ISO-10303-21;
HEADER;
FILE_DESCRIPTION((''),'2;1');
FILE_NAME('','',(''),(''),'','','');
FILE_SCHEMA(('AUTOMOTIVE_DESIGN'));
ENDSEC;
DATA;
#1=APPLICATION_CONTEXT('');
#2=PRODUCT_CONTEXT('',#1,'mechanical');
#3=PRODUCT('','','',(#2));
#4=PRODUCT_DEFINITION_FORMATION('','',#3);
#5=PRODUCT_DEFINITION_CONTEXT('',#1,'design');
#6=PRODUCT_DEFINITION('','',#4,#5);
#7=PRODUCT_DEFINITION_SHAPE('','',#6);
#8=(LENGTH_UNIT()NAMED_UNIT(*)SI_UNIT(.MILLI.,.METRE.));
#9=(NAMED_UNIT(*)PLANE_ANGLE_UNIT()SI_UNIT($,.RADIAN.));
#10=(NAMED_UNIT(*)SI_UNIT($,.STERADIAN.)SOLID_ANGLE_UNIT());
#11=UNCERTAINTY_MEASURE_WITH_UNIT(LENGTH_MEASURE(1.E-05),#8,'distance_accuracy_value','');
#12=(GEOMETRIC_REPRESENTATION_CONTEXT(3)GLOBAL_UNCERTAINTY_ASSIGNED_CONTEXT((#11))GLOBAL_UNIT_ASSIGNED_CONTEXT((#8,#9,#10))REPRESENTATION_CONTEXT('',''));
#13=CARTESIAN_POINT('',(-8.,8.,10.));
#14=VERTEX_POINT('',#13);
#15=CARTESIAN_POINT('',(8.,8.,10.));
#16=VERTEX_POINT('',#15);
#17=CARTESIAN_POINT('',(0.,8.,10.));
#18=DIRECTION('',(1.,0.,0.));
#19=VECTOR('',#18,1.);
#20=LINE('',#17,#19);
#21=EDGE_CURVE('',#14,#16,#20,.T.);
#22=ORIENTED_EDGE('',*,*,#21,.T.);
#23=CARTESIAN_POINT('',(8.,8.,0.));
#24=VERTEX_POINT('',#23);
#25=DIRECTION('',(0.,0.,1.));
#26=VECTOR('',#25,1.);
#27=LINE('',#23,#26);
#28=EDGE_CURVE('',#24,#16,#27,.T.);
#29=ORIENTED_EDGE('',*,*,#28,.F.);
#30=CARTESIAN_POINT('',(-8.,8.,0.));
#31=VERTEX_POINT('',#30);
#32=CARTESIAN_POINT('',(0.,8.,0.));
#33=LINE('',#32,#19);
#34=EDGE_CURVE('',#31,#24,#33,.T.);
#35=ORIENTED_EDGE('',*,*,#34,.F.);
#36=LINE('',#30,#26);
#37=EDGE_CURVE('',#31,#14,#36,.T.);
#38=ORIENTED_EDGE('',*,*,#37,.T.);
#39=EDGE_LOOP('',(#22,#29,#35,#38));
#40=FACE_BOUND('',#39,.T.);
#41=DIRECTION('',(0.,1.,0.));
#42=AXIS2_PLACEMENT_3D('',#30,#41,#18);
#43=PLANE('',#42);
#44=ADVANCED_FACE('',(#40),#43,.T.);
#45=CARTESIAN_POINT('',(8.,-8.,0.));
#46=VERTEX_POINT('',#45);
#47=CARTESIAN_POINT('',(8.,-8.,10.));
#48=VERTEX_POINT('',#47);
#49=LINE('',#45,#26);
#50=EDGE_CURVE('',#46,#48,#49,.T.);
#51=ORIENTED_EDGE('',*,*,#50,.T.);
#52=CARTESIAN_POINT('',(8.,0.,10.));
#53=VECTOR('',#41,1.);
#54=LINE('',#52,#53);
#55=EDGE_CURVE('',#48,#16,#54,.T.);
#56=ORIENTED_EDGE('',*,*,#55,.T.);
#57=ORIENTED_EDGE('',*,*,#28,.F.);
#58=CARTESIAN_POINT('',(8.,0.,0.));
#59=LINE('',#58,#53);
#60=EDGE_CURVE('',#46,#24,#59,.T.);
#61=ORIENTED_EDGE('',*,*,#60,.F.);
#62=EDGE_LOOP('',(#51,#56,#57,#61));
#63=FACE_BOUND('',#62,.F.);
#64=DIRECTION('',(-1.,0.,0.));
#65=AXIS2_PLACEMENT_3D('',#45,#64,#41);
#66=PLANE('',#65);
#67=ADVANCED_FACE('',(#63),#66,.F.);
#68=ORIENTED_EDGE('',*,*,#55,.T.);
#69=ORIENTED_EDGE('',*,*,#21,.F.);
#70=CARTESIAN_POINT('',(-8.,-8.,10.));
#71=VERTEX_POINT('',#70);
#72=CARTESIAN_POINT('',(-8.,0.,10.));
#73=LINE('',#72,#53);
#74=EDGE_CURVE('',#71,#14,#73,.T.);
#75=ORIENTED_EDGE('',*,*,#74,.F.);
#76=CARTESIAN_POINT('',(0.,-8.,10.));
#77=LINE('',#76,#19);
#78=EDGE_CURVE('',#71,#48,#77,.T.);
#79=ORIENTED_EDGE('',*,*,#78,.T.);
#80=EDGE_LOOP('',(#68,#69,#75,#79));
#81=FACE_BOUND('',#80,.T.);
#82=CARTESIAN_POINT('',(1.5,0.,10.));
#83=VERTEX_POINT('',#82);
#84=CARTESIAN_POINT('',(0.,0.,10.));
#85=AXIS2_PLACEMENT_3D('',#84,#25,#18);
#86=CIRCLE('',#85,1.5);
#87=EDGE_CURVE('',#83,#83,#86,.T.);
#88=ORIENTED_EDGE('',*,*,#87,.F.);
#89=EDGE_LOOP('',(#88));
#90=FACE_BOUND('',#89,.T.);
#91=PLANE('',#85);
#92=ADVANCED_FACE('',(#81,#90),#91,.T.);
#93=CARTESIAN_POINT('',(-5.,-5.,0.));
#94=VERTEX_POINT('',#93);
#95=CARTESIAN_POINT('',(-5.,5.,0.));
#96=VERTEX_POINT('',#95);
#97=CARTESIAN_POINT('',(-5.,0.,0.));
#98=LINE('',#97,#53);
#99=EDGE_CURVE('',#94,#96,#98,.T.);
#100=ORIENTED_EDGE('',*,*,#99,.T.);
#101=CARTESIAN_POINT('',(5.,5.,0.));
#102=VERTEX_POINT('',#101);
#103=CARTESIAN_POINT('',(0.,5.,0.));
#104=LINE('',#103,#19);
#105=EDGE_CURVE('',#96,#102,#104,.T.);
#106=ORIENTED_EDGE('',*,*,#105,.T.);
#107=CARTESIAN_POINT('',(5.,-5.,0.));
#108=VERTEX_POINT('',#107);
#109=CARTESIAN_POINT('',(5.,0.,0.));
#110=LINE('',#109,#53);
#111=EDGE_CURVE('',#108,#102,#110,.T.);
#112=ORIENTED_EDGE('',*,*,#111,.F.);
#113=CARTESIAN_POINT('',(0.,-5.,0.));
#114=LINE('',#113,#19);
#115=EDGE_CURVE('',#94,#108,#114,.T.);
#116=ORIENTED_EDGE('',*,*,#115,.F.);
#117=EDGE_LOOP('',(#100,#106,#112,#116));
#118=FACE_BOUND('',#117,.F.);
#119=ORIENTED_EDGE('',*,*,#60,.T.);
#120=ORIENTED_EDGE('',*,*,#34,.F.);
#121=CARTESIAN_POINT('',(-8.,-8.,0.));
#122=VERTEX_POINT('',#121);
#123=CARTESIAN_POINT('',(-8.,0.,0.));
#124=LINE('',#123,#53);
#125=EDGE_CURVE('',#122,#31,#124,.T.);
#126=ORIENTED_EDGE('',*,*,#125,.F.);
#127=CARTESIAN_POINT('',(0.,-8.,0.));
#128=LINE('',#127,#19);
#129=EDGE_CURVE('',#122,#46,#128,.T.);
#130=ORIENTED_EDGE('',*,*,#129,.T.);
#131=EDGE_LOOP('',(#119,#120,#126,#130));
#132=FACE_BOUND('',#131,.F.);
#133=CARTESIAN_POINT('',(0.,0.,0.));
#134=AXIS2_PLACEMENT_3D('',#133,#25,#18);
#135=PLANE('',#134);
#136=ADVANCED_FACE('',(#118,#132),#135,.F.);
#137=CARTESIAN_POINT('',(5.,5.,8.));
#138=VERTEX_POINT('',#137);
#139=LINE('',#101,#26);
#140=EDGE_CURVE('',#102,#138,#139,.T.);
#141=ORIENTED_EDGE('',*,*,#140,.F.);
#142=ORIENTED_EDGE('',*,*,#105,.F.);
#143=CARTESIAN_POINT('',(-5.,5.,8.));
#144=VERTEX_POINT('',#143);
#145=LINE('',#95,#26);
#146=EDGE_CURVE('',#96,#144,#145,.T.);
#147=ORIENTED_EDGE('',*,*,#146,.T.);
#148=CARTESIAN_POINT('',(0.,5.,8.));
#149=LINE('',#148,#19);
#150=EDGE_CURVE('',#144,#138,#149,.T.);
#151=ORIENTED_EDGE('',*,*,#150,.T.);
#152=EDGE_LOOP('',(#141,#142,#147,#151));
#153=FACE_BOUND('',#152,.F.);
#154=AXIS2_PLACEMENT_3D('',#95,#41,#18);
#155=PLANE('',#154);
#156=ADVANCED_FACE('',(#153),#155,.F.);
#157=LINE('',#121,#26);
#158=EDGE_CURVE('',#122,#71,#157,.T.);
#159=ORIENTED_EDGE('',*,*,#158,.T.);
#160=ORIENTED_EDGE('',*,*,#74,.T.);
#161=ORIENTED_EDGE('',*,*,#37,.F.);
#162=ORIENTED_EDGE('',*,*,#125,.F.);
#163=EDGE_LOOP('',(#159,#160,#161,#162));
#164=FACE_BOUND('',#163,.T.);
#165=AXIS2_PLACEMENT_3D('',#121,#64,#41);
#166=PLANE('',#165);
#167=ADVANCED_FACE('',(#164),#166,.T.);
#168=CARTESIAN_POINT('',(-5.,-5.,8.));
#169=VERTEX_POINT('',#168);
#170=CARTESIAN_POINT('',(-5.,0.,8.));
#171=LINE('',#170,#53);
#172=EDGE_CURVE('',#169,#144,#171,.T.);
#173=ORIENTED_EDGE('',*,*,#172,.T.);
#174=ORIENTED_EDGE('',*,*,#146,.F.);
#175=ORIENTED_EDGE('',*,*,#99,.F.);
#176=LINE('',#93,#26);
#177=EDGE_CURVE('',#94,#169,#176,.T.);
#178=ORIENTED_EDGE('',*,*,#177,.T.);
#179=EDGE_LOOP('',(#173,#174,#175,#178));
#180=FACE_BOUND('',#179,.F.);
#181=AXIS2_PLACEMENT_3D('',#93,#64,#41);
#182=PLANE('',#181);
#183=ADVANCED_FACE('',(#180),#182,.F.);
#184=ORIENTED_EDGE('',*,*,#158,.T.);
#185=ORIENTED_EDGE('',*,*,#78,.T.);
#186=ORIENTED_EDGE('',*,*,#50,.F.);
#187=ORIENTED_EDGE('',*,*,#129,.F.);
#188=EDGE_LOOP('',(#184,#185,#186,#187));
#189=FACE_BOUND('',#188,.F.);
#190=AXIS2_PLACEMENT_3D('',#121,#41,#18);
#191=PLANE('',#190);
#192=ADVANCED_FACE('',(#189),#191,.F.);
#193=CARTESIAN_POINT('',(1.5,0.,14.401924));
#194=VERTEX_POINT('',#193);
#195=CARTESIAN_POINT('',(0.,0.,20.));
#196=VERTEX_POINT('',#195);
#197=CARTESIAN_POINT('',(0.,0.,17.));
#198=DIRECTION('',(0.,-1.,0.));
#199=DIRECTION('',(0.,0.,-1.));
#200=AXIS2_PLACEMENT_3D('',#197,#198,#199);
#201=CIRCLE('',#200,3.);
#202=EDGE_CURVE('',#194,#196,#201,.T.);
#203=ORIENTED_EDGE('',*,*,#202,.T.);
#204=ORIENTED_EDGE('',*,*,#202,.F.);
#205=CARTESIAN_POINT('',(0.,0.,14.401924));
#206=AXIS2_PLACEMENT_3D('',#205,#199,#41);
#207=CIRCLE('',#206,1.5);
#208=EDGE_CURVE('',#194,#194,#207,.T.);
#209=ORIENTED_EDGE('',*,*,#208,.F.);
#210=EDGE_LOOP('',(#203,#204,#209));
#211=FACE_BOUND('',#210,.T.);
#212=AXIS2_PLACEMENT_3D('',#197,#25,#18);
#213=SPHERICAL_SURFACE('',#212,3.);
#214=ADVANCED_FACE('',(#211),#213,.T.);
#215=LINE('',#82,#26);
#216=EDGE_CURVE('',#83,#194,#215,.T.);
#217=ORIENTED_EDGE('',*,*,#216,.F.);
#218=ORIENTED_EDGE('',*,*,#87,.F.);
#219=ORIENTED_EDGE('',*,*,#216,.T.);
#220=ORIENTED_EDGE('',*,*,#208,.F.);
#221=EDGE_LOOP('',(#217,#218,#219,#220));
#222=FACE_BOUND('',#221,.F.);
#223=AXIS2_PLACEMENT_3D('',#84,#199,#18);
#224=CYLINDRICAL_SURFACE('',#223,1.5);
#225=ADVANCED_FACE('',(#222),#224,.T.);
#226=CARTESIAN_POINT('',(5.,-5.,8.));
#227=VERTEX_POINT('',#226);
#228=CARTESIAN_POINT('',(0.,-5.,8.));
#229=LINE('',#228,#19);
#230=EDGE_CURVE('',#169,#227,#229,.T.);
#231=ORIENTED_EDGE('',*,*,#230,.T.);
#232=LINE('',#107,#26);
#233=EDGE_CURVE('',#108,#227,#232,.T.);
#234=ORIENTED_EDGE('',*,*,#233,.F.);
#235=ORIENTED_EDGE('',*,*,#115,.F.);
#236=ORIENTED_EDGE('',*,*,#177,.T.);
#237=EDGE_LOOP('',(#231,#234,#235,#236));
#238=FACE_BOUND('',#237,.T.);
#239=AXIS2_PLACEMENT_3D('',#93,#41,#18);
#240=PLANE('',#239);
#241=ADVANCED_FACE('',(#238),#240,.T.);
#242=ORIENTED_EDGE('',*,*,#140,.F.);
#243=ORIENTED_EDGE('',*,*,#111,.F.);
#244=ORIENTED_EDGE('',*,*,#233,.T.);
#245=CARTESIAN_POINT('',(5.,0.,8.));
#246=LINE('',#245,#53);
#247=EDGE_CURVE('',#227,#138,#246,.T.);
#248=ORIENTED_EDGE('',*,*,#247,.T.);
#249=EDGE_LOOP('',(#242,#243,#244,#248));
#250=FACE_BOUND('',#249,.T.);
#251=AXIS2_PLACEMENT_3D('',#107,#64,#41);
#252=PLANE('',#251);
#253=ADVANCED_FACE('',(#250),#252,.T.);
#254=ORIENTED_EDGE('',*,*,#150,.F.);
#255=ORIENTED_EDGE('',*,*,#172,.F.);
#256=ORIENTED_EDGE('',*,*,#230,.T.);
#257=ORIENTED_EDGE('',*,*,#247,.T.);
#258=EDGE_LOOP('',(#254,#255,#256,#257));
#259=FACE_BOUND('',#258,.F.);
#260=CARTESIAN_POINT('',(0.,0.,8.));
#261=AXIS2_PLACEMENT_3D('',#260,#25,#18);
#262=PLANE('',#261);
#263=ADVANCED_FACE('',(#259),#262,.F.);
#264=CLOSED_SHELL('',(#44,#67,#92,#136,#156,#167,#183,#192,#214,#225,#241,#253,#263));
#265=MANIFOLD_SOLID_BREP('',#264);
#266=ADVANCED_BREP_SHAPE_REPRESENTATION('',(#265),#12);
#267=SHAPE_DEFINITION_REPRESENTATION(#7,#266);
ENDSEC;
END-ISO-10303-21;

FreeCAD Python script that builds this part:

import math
import FreeCAD as App
import Part
import Sketcher

V = App.Vector


def add_polygon(sketch, points):
    """Adds a closed chain of lines whose ends are joined by coincident constraints."""
    first, n = sketch.GeometryCount, len(points)
    for a, b in zip(points, points[1:] + points[:1]):
        sketch.addGeometry(Part.LineSegment(App.Vector(*a, 0), App.Vector(*b, 0)), False)
    for i in range(n):
        sketch.addConstraint(Sketcher.Constraint("Coincident", first + i, 2, first + (i + 1) % n, 1))

doc = App.newDocument("Part")
params = doc.addObject("Spreadsheet::Sheet", "Params")
for row, (alias, value) in enumerate([
    ("sketch1_width", "10 mm"),
    ("pad1_length", "8 mm"),
    ("sketch2_diameter", "3 mm"),
    ("pad2_length", "5 mm"),
    ("sketch3_radius", "3 mm"),
    ("revolution_angle", "360 deg"),
    ("sketch4_width", "16 mm"),
    ("pad3_length", "10 mm"),
], start=1):
    params.set(f"A{row}", alias)
    params.set(f"B{row}", "=" + value)
    params.setAlias(f"B{row}", alias)

body = doc.addObject("PartDesign::Body", "Body")

# Sketch on XY plane
sketch1 = body.newObject("Sketcher::SketchObject", "Sketch")
sketch1.AttachmentSupport = (doc.getObject("XY_Plane"), [""])
sketch1.MapMode = "FlatFace"
add_polygon(sketch1, [(-5, 5), (-5, -5), (5, -5), (5, 5)])  # lines 0-3
sketch1.addConstraint(Sketcher.Constraint("Vertical", 0))
sketch1.addConstraint(Sketcher.Constraint("Horizontal", 1))
sketch1.addConstraint(Sketcher.Constraint("Vertical", 2))
sketch1.addConstraint(Sketcher.Constraint("Horizontal", 3))
sketch1.addConstraint(Sketcher.Constraint("Symmetric", 0, 2, 2, 2, -1, 1))
sketch1.addConstraint(Sketcher.Constraint("Equal", 3, 0))
sketch1.addConstraint(Sketcher.Constraint("DistanceX", 1, 1, 1, 2, 10.0))
sketch1.setExpression("Constraints[10]", "Params.sketch1_width")
pad1 = body.newObject("PartDesign::Pad", "Pad")
pad1.Profile = sketch1
pad1.setExpression("Length", "Params.pad1_length")
body2 = doc.addObject("PartDesign::Body", "Body001")

# Sketch on XY plane
sketch2 = body2.newObject("Sketcher::SketchObject", "Sketch001")
sketch2.AttachmentSupport = (doc.getObject("XY_Plane001"), [""])
sketch2.MapMode = "FlatFace"
sketch2.AttachmentOffset = App.Placement(V(0, 0, 10), App.Rotation())
sketch2.addGeometry(Part.Circle(V(0, 0, 0), V(0, 0, 1), 1.5), False)
sketch2.addConstraint(Sketcher.Constraint("Coincident", 0, 3, -1, 1))
sketch2.addConstraint(Sketcher.Constraint("Diameter", 0, 3.0))
sketch2.setExpression("Constraints[1]", "Params.sketch2_diameter")
pad2 = body2.newObject("PartDesign::Pad", "Pad001")
pad2.Profile = sketch2
pad2.setExpression("Length", "Params.pad2_length")
body3 = doc.addObject("PartDesign::Body", "Body002")

# Sketch on XZ plane
sketch3 = body3.newObject("Sketcher::SketchObject", "Sketch002")
sketch3.AttachmentSupport = (doc.getObject("XZ_Plane002"), [""])
sketch3.MapMode = "FlatFace"
sketch3.addGeometry(Part.ArcOfCircle(Part.Circle(V(0, 17, 0), V(0, 0, 1), 3), math.radians(-90), math.radians(90)), False)
sketch3.addGeometry(Part.LineSegment(V(0, 20, 0), V(0, 14, 0)), False)
sketch3.addConstraint(Sketcher.Constraint("Coincident", 0, 1, 1, 2))
sketch3.addConstraint(Sketcher.Constraint("Coincident", 1, 1, 0, 2))
sketch3.addConstraint(Sketcher.Constraint("Vertical", 1))
sketch3.addConstraint(Sketcher.Constraint("PointOnObject", 0, 3, -2))
sketch3.addConstraint(Sketcher.Constraint("PointOnObject", 0, 1, -2))
sketch3.addConstraint(Sketcher.Constraint("Radius", 0, 3.0))
sketch3.addConstraint(Sketcher.Constraint("DistanceY", -1, 1, 0, 3, 17.0))
sketch3.setExpression("Constraints[5]", "Params.sketch3_radius")
revolution = body3.newObject("PartDesign::Revolution", "Revolution")
revolution.Profile = sketch3
revolution.ReferenceAxis = (sketch3, ["V_Axis"])
revolution.setExpression("Angle", "Params.revolution_angle")
body4 = doc.addObject("PartDesign::Body", "Body003")

# Sketch on XY plane
sketch4 = body4.newObject("Sketcher::SketchObject", "Sketch003")
sketch4.AttachmentSupport = (doc.getObject("XY_Plane003"), [""])
sketch4.MapMode = "FlatFace"
add_polygon(sketch4, [(-8, 8), (-8, -8), (8, -8), (8, 8)])  # lines 0-3
sketch4.addConstraint(Sketcher.Constraint("Vertical", 0))
sketch4.addConstraint(Sketcher.Constraint("Horizontal", 1))
sketch4.addConstraint(Sketcher.Constraint("Vertical", 2))
sketch4.addConstraint(Sketcher.Constraint("Horizontal", 3))
sketch4.addConstraint(Sketcher.Constraint("Symmetric", 0, 2, 2, 2, -1, 1))
sketch4.addConstraint(Sketcher.Constraint("Equal", 3, 0))
sketch4.addConstraint(Sketcher.Constraint("DistanceX", 1, 1, 1, 2, 16.0))
sketch4.setExpression("Constraints[10]", "Params.sketch4_width")
pad3 = body4.newObject("PartDesign::Pad", "Pad002")
pad3.Profile = sketch4
pad3.setExpression("Length", "Params.pad3_length")
doc.recompute()

boolean = body4.newObject("PartDesign::Boolean", "Boolean")
boolean.Type = "Fuse"
boolean.addObjects([body2])
doc.recompute()

boolean2 = body4.newObject("PartDesign::Boolean", "Boolean001")
boolean2.Type = "Fuse"
boolean2.addObjects([body3])
doc.recompute()

boolean3 = body4.newObject("PartDesign::Boolean", "Boolean002")
boolean3.Type = "Cut"
boolean3.addObjects([body])

doc.recompute()
